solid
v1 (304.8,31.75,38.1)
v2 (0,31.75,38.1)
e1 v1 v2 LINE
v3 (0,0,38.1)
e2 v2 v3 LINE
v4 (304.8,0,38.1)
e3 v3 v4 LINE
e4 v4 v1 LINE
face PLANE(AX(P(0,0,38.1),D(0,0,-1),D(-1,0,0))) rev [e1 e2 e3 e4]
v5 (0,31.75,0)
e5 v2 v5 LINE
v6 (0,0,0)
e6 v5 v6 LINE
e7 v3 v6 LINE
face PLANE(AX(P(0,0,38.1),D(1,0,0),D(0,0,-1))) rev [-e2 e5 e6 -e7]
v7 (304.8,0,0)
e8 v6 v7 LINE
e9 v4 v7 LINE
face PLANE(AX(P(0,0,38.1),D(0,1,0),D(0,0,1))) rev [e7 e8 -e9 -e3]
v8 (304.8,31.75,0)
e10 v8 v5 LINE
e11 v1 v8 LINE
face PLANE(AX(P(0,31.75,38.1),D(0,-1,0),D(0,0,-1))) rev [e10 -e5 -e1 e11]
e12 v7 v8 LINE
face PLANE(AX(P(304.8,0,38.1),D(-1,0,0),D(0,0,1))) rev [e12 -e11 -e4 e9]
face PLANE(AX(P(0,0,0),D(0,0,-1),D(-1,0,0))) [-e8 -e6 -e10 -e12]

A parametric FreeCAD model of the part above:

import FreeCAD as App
import Part
import Sketcher
Q = App.Units.Quantity

doc = App.newDocument("Part")
body = doc.addObject("PartDesign::Body", "Body")

sketch1 = body.newObject("Sketcher::SketchObject", "Sketch")
sketch1.AttachmentSupport = (doc.getObject("XY_Plane"), [""])
sketch1.MapMode = "FlatFace"
sketch1.addGeometry([
    Part.LineSegment(App.Vector(0, 31.75, 0), App.Vector(0, 0, 0)),
    Part.LineSegment(App.Vector(0, 0, 0), App.Vector(304.8, 0, 0)),
    Part.LineSegment(App.Vector(304.8, 0, 0), App.Vector(304.8, 31.75, 0)),
    Part.LineSegment(App.Vector(304.8, 31.75, 0), App.Vector(0, 31.75, 0)),
], False)
sketch1.addConstraint([
    Sketcher.Constraint("Coincident", 0, 2, 1, 1),
    Sketcher.Constraint("Coincident", 1, 2, 2, 1),
    Sketcher.Constraint("Coincident", 2, 2, 3, 1),
    Sketcher.Constraint("Coincident", 3, 2, 0, 1),
    Sketcher.Constraint("Vertical", 0),
    Sketcher.Constraint("Horizontal", 1),
    Sketcher.Constraint("Vertical", 2),
    Sketcher.Constraint("Horizontal", 3),
    Sketcher.Constraint("Coincident", 0, 2, -1, 1),
    Sketcher.Constraint("DistanceX", 1, 1, 1, 2, Q("12 in")),
    Sketcher.Constraint("DistanceY", 0, 2, 0, 1, Q("1.25 in")),
])
pad1 = body.newObject("PartDesign::Pad", "Pad")
pad1.Profile = sketch1
pad1.Length = Q("1.5 in")

doc.recompute()
